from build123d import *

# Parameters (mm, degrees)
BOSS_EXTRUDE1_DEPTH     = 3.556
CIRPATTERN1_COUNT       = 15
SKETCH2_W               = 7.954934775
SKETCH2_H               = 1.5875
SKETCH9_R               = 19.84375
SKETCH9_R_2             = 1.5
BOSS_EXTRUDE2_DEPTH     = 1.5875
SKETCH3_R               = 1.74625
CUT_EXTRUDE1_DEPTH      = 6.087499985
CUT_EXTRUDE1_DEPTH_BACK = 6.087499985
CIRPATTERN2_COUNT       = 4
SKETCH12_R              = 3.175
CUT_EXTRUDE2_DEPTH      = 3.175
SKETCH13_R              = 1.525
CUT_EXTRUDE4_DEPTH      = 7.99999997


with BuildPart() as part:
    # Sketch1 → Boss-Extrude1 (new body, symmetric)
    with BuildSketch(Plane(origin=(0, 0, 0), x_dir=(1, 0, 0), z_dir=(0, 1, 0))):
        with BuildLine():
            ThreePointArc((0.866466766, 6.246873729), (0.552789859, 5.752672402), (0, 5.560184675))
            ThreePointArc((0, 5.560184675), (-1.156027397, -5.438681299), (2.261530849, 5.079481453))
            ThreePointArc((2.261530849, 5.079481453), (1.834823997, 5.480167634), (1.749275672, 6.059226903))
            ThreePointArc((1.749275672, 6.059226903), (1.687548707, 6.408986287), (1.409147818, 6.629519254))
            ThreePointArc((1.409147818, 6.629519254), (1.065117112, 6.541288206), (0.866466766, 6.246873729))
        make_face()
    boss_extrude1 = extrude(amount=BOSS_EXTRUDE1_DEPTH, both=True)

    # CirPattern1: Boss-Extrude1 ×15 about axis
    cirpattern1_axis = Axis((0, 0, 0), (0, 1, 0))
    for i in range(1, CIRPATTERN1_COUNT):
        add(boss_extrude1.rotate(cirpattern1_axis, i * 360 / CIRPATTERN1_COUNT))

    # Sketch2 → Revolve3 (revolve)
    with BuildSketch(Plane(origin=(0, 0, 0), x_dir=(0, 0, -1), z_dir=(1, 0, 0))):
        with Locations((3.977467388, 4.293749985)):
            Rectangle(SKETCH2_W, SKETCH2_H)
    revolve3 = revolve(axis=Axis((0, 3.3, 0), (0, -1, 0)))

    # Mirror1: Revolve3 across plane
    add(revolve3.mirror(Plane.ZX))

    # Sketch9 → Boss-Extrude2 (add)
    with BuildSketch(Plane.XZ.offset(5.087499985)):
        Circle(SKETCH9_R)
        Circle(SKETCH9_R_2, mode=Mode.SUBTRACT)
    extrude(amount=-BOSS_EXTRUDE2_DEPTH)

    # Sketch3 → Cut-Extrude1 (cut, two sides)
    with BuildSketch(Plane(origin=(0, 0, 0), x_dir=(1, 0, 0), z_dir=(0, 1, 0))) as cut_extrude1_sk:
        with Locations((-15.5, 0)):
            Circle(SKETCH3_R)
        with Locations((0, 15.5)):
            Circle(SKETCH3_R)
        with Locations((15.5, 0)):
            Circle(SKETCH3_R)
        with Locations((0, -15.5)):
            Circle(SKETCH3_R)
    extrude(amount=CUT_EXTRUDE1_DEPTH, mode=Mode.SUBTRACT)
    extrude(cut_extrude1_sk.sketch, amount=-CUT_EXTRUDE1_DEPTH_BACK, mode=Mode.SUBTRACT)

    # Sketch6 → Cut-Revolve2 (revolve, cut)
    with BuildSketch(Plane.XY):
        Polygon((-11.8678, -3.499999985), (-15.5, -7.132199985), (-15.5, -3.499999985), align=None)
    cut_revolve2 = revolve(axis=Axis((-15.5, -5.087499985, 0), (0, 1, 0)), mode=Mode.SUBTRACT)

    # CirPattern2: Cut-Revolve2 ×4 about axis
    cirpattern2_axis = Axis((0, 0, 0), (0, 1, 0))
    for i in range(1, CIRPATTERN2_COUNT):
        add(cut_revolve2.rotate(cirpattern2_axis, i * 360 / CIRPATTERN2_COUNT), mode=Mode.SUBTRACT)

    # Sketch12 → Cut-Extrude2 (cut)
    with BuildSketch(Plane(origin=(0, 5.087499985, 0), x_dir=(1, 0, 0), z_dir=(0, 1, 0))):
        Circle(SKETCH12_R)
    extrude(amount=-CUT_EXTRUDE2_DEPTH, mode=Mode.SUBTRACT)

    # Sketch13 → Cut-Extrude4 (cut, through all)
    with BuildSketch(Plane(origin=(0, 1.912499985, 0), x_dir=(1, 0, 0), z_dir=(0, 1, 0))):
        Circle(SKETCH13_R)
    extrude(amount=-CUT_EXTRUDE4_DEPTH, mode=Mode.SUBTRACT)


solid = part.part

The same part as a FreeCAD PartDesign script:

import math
import FreeCAD as App
import Part
import Sketcher
from FreeCAD import Vector
Q = App.Units.Quantity

doc = App.newDocument("Part")
body = doc.addObject("PartDesign::Body", "Body")

# Sketch on XZ plane
sketch1 = body.newObject("Sketcher::SketchObject", "Sketch")
sketch1.AttachmentSupport = (doc.getObject("XZ_Plane"), [""])
sketch1.MapMode = "FlatFace"
sketch1.addGeometry([
    Part.ArcOfCircle(Part.Circle(Vector(0, -6.5, 0), Vector(0, 0, 1), 0.9), math.radians(13), math.radians(90)),  # 0
    Part.ArcOfCircle(Part.Circle(Vector(0, 0, 0), Vector(0, 0, 1), 5.6), math.radians(-66), math.radians(270)),  # 1
    Part.ArcOfCircle(Part.Circle(Vector(2.6, -5.9, 0), Vector(0, 0, 1), 0.9), math.radians(114), math.radians(191)),  # 2
    Part.ArcOfCircle(Part.Circle(Vector(1.3, -6.2, 0), Vector(0, 0, 1), 0.5), math.radians(-72), math.radians(11)),  # 3
    Part.ArcOfCircle(Part.Circle(Vector(1.4, -6.1, 0), Vector(0, 0, 1), 0.5), math.radians(-167), math.radians(-84)),  # 4
], False)
sketch1.addConstraint([
    Sketcher.Constraint("Tangent", 0, 2, 1, 2),
    Sketcher.Constraint("Tangent", 1, 1, 2, 1),
    Sketcher.Constraint("Tangent", 2, 2, 3, 2),
    Sketcher.Constraint("Coincident", 3, 1, 4, 2),
    Sketcher.Constraint("Tangent", 4, 1, 0, 1),
    Sketcher.Constraint("Coincident", 1, 3, -1, 1),
    Sketcher.Constraint("Equal", 0, 2),
    Sketcher.Constraint("Equal", 3, 4),
    Sketcher.Constraint("PointOnObject", 0, 3, -2),
    Sketcher.Constraint("Radius", 0, 0.89),
    Sketcher.Constraint("Radius", 3, 0.5),
    Sketcher.Constraint("Radius", 1, 5.560185),
    Sketcher.Constraint("DistanceX", 4, 3, 3, 1, 0.055902),
    Sketcher.Constraint("DistanceY", 4, 1, 3, 3, 0.094001),
    Sketcher.Constraint("DistanceX", -1, 1, 1, 1, 2.261531),
])
pad1 = body.newObject("PartDesign::Pad", "Pad")
pad1.Profile = sketch1
pad1.Length = Q("0.28 in")
pad1.Midplane = True
doc.recompute()

polarpattern = body.newObject("PartDesign::PolarPattern", "PolarPattern")
polarpattern.Originals = [pad1]
polarpattern.Axis = (doc.getObject("Y_Axis"), [""])
polarpattern.Angle = 360
polarpattern.Occurrences = 15
body.Tip = polarpattern

# Sketch on YZ plane
sketch2 = body.newObject("Sketcher::SketchObject", "Sketch001")
sketch2.AttachmentSupport = (doc.getObject("YZ_Plane"), [""])
sketch2.MapMode = "FlatFace"
sketch2.addGeometry([
    Part.LineSegment(Vector(5.1, 0, 0), Vector(3.5, 0, 0)),
    Part.LineSegment(Vector(3.5, 0, 0), Vector(3.5, -8, 0)),
    Part.LineSegment(Vector(3.5, -8, 0), Vector(5.1, -8, 0)),
    Part.LineSegment(Vector(5.1, -8, 0), Vector(5.1, 0, 0)),
], False)
sketch2.addConstraint([
    Sketcher.Constraint("Coincident", 0, 2, 1, 1),
    Sketcher.Constraint("Coincident", 1, 2, 2, 1),
    Sketcher.Constraint("Coincident", 2, 2, 3, 1),
    Sketcher.Constraint("Coincident", 3, 2, 0, 1),
    Sketcher.Constraint("Horizontal", 0),
    Sketcher.Constraint("Vertical", 1),
    Sketcher.Constraint("Horizontal", 2),
    Sketcher.Constraint("Vertical", 3),
    Sketcher.Constraint("PointOnObject", 0, 2, -1),
    Sketcher.Constraint("DistanceX", 0, 2, 0, 1, Q("0.0625 in")),
    Sketcher.Constraint("DistanceX", -1, 1, 0, 2, 3.5),
    Sketcher.Constraint("DistanceY", 1, 2, 1, 1, 7.954935),
])
revolution = body.newObject("PartDesign::Revolution", "Revolution")
revolution.Profile = sketch2
revolution.ReferenceAxis = (sketch2, ["H_Axis"])
revolution.Angle = 360
doc.recompute()

mirrored = body.newObject("PartDesign::Mirrored", "Mirrored")
mirrored.Originals = [revolution]
mirrored.MirrorPlane = (doc.getObject("XZ_Plane"), [""])
body.Tip = mirrored

# Sketch on XZ plane
sketch3 = body.newObject("Sketcher::SketchObject", "Sketch002")
sketch3.AttachmentSupport = (doc.getObject("XZ_Plane"), [""])
sketch3.MapMode = "FlatFace"
sketch3.AttachmentOffset = App.Placement(Vector(0, 0, 5.0875), App.Rotation())
sketch3.addGeometry([
    Part.Circle(Vector(0, 0, 0), Vector(0, 0, 1), 19.8),
    Part.Circle(Vector(0, 0, 0), Vector(0, 0, 1), 1.5),
], False)
sketch3.addConstraint([
    Sketcher.Constraint("Coincident", 0, 3, -1, 1),
    Sketcher.Constraint("Coincident", 1, 3, -1, 1),
    Sketcher.Constraint("Diameter", 0, Q("1.5625 in")),
    Sketcher.Constraint("Diameter", 1, 3.0),
])
pad2 = body.newObject("PartDesign::Pad", "Pad001")
pad2.Profile = sketch3
pad2.Length = Q("0.0625 in")
pad2.Reversed = True

# Sketch on XZ plane
sketch4 = body.newObject("Sketcher::SketchObject", "Sketch003")
sketch4.AttachmentSupport = (doc.getObject("XZ_Plane"), [""])
sketch4.MapMode = "FlatFace"
sketch4.addGeometry([
    Part.Circle(Vector(-15.5, 0, 0), Vector(0, 0, 1), 1.7),
    Part.Circle(Vector(0, -15.5, 0), Vector(0, 0, 1), 1.7),
    Part.Circle(Vector(15.5, 0, 0), Vector(0, 0, 1), 1.7),
    Part.Circle(Vector(0, 15.5, 0), Vector(0, 0, 1), 1.7),
], False)
sketch4.addConstraint([
    Sketcher.Constraint("Equal", 0, 1),
    Sketcher.Constraint("Equal", 1, 2),
    Sketcher.Constraint("Equal", 2, 3),
    Sketcher.Constraint("Symmetric", 0, 3, 2, 3, -1, 1),
    Sketcher.Constraint("Symmetric", 1, 3, 3, 3, -1, 1),
    Sketcher.Constraint("PointOnObject", 0, 3, -1),
    Sketcher.Constraint("PointOnObject", 1, 3, -2),
    Sketcher.Constraint("Diameter", 0, Q("0.1375 in")),
    Sketcher.Constraint("DistanceX", 0, 3, -1, 1, 15.5),
    Sketcher.Constraint("DistanceY", 1, 3, -1, 1, 15.5),
])
pocket1 = body.newObject("PartDesign::Pocket", "Pocket")
pocket1.Profile = sketch4
pocket1.Type = "ThroughAll"
pocket1.Midplane = True

# Sketch on XY plane
sketch5 = body.newObject("Sketcher::SketchObject", "Sketch004")
sketch5.AttachmentSupport = (doc.getObject("XY_Plane"), [""])
sketch5.MapMode = "FlatFace"
sketch5.addGeometry([
    Part.LineSegment(Vector(-15.5, -7.1, 0), Vector(-11.9, -3.5, 0)),
    Part.LineSegment(Vector(-11.9, -3.5, 0), Vector(-15.5, -3.5, 0)),
    Part.LineSegment(Vector(-15.5, -3.5, 0), Vector(-15.5, -7.1, 0)),
], False)
sketch5.addGeometry(Part.LineSegment(Vector(-15.5, -7.1, 0), Vector(-15.5, -3.5, 0)), True)  # axis
sketch5.addConstraint([
    Sketcher.Constraint("Coincident", 0, 2, 1, 1),
    Sketcher.Constraint("Coincident", 1, 2, 2, 1),
    Sketcher.Constraint("Coincident", 2, 2, 0, 1),
    Sketcher.Constraint("Horizontal", 1),
    Sketcher.Constraint("Vertical", 2),
    Sketcher.Constraint("Vertical", 3),
    Sketcher.Constraint("Coincident", 3, 1, 2, 2),
    Sketcher.Constraint("Horizontal", 0, 2, 3, 2),
    Sketcher.Constraint("Equal", 1, 2),
    Sketcher.Constraint("DistanceX", 1, 2, 1, 1, Q("0.143 in")),
    Sketcher.Constraint("DistanceX", 0, 2, -1, 1, 11.8678),
    Sketcher.Constraint("DistanceY", 0, 2, -1, 1, 3.5),
])
groove = body.newObject("PartDesign::Groove", "Groove")
groove.Profile = sketch5
groove.ReferenceAxis = (sketch5, ["Axis0"])
groove.Angle = 360
doc.recompute()

polarpattern2 = body.newObject("PartDesign::PolarPattern", "PolarPattern001")
polarpattern2.Originals = [groove]
polarpattern2.Axis = (doc.getObject("Y_Axis"), [""])
polarpattern2.Angle = 360
polarpattern2.Occurrences = 4
body.Tip = polarpattern2

# Sketch on XZ plane
sketch6 = body.newObject("Sketcher::SketchObject", "Sketch005")
sketch6.AttachmentSupport = (doc.getObject("XZ_Plane"), [""])
sketch6.MapMode = "FlatFace"
sketch6.AttachmentOffset = App.Placement(Vector(0, 0, -5.0875), App.Rotation())
sketch6.addGeometry(Part.Circle(Vector(0, 0, 0), Vector(0, 0, 1), 3.2), False)
sketch6.addConstraint([
    Sketcher.Constraint("Coincident", 0, 3, -1, 1),
    Sketcher.Constraint("Diameter", 0, Q("0.25 in")),
])
pocket2 = body.newObject("PartDesign::Pocket", "Pocket001")
pocket2.Profile = sketch6
pocket2.Length = Q("0.125 in")
pocket2.Reversed = True

# Sketch on XZ plane
sketch7 = body.newObject("Sketcher::SketchObject", "Sketch006")
sketch7.AttachmentSupport = (doc.getObject("XZ_Plane"), [""])
sketch7.MapMode = "FlatFace"
sketch7.AttachmentOffset = App.Placement(Vector(0, 0, -1.9125), App.Rotation())
sketch7.addGeometry(Part.Circle(Vector(0, 0, 0), Vector(0, 0, 1), 1.5), False)
sketch7.addConstraint([
    Sketcher.Constraint("Coincident", 0, 3, -1, 1),
    Sketcher.Constraint("Diameter", 0, 3.05),
])
pocket3 = body.newObject("PartDesign::Pocket", "Pocket002")
pocket3.Profile = sketch7
pocket3.Type = "ThroughAll"
pocket3.Reversed = True

doc.recompute()
